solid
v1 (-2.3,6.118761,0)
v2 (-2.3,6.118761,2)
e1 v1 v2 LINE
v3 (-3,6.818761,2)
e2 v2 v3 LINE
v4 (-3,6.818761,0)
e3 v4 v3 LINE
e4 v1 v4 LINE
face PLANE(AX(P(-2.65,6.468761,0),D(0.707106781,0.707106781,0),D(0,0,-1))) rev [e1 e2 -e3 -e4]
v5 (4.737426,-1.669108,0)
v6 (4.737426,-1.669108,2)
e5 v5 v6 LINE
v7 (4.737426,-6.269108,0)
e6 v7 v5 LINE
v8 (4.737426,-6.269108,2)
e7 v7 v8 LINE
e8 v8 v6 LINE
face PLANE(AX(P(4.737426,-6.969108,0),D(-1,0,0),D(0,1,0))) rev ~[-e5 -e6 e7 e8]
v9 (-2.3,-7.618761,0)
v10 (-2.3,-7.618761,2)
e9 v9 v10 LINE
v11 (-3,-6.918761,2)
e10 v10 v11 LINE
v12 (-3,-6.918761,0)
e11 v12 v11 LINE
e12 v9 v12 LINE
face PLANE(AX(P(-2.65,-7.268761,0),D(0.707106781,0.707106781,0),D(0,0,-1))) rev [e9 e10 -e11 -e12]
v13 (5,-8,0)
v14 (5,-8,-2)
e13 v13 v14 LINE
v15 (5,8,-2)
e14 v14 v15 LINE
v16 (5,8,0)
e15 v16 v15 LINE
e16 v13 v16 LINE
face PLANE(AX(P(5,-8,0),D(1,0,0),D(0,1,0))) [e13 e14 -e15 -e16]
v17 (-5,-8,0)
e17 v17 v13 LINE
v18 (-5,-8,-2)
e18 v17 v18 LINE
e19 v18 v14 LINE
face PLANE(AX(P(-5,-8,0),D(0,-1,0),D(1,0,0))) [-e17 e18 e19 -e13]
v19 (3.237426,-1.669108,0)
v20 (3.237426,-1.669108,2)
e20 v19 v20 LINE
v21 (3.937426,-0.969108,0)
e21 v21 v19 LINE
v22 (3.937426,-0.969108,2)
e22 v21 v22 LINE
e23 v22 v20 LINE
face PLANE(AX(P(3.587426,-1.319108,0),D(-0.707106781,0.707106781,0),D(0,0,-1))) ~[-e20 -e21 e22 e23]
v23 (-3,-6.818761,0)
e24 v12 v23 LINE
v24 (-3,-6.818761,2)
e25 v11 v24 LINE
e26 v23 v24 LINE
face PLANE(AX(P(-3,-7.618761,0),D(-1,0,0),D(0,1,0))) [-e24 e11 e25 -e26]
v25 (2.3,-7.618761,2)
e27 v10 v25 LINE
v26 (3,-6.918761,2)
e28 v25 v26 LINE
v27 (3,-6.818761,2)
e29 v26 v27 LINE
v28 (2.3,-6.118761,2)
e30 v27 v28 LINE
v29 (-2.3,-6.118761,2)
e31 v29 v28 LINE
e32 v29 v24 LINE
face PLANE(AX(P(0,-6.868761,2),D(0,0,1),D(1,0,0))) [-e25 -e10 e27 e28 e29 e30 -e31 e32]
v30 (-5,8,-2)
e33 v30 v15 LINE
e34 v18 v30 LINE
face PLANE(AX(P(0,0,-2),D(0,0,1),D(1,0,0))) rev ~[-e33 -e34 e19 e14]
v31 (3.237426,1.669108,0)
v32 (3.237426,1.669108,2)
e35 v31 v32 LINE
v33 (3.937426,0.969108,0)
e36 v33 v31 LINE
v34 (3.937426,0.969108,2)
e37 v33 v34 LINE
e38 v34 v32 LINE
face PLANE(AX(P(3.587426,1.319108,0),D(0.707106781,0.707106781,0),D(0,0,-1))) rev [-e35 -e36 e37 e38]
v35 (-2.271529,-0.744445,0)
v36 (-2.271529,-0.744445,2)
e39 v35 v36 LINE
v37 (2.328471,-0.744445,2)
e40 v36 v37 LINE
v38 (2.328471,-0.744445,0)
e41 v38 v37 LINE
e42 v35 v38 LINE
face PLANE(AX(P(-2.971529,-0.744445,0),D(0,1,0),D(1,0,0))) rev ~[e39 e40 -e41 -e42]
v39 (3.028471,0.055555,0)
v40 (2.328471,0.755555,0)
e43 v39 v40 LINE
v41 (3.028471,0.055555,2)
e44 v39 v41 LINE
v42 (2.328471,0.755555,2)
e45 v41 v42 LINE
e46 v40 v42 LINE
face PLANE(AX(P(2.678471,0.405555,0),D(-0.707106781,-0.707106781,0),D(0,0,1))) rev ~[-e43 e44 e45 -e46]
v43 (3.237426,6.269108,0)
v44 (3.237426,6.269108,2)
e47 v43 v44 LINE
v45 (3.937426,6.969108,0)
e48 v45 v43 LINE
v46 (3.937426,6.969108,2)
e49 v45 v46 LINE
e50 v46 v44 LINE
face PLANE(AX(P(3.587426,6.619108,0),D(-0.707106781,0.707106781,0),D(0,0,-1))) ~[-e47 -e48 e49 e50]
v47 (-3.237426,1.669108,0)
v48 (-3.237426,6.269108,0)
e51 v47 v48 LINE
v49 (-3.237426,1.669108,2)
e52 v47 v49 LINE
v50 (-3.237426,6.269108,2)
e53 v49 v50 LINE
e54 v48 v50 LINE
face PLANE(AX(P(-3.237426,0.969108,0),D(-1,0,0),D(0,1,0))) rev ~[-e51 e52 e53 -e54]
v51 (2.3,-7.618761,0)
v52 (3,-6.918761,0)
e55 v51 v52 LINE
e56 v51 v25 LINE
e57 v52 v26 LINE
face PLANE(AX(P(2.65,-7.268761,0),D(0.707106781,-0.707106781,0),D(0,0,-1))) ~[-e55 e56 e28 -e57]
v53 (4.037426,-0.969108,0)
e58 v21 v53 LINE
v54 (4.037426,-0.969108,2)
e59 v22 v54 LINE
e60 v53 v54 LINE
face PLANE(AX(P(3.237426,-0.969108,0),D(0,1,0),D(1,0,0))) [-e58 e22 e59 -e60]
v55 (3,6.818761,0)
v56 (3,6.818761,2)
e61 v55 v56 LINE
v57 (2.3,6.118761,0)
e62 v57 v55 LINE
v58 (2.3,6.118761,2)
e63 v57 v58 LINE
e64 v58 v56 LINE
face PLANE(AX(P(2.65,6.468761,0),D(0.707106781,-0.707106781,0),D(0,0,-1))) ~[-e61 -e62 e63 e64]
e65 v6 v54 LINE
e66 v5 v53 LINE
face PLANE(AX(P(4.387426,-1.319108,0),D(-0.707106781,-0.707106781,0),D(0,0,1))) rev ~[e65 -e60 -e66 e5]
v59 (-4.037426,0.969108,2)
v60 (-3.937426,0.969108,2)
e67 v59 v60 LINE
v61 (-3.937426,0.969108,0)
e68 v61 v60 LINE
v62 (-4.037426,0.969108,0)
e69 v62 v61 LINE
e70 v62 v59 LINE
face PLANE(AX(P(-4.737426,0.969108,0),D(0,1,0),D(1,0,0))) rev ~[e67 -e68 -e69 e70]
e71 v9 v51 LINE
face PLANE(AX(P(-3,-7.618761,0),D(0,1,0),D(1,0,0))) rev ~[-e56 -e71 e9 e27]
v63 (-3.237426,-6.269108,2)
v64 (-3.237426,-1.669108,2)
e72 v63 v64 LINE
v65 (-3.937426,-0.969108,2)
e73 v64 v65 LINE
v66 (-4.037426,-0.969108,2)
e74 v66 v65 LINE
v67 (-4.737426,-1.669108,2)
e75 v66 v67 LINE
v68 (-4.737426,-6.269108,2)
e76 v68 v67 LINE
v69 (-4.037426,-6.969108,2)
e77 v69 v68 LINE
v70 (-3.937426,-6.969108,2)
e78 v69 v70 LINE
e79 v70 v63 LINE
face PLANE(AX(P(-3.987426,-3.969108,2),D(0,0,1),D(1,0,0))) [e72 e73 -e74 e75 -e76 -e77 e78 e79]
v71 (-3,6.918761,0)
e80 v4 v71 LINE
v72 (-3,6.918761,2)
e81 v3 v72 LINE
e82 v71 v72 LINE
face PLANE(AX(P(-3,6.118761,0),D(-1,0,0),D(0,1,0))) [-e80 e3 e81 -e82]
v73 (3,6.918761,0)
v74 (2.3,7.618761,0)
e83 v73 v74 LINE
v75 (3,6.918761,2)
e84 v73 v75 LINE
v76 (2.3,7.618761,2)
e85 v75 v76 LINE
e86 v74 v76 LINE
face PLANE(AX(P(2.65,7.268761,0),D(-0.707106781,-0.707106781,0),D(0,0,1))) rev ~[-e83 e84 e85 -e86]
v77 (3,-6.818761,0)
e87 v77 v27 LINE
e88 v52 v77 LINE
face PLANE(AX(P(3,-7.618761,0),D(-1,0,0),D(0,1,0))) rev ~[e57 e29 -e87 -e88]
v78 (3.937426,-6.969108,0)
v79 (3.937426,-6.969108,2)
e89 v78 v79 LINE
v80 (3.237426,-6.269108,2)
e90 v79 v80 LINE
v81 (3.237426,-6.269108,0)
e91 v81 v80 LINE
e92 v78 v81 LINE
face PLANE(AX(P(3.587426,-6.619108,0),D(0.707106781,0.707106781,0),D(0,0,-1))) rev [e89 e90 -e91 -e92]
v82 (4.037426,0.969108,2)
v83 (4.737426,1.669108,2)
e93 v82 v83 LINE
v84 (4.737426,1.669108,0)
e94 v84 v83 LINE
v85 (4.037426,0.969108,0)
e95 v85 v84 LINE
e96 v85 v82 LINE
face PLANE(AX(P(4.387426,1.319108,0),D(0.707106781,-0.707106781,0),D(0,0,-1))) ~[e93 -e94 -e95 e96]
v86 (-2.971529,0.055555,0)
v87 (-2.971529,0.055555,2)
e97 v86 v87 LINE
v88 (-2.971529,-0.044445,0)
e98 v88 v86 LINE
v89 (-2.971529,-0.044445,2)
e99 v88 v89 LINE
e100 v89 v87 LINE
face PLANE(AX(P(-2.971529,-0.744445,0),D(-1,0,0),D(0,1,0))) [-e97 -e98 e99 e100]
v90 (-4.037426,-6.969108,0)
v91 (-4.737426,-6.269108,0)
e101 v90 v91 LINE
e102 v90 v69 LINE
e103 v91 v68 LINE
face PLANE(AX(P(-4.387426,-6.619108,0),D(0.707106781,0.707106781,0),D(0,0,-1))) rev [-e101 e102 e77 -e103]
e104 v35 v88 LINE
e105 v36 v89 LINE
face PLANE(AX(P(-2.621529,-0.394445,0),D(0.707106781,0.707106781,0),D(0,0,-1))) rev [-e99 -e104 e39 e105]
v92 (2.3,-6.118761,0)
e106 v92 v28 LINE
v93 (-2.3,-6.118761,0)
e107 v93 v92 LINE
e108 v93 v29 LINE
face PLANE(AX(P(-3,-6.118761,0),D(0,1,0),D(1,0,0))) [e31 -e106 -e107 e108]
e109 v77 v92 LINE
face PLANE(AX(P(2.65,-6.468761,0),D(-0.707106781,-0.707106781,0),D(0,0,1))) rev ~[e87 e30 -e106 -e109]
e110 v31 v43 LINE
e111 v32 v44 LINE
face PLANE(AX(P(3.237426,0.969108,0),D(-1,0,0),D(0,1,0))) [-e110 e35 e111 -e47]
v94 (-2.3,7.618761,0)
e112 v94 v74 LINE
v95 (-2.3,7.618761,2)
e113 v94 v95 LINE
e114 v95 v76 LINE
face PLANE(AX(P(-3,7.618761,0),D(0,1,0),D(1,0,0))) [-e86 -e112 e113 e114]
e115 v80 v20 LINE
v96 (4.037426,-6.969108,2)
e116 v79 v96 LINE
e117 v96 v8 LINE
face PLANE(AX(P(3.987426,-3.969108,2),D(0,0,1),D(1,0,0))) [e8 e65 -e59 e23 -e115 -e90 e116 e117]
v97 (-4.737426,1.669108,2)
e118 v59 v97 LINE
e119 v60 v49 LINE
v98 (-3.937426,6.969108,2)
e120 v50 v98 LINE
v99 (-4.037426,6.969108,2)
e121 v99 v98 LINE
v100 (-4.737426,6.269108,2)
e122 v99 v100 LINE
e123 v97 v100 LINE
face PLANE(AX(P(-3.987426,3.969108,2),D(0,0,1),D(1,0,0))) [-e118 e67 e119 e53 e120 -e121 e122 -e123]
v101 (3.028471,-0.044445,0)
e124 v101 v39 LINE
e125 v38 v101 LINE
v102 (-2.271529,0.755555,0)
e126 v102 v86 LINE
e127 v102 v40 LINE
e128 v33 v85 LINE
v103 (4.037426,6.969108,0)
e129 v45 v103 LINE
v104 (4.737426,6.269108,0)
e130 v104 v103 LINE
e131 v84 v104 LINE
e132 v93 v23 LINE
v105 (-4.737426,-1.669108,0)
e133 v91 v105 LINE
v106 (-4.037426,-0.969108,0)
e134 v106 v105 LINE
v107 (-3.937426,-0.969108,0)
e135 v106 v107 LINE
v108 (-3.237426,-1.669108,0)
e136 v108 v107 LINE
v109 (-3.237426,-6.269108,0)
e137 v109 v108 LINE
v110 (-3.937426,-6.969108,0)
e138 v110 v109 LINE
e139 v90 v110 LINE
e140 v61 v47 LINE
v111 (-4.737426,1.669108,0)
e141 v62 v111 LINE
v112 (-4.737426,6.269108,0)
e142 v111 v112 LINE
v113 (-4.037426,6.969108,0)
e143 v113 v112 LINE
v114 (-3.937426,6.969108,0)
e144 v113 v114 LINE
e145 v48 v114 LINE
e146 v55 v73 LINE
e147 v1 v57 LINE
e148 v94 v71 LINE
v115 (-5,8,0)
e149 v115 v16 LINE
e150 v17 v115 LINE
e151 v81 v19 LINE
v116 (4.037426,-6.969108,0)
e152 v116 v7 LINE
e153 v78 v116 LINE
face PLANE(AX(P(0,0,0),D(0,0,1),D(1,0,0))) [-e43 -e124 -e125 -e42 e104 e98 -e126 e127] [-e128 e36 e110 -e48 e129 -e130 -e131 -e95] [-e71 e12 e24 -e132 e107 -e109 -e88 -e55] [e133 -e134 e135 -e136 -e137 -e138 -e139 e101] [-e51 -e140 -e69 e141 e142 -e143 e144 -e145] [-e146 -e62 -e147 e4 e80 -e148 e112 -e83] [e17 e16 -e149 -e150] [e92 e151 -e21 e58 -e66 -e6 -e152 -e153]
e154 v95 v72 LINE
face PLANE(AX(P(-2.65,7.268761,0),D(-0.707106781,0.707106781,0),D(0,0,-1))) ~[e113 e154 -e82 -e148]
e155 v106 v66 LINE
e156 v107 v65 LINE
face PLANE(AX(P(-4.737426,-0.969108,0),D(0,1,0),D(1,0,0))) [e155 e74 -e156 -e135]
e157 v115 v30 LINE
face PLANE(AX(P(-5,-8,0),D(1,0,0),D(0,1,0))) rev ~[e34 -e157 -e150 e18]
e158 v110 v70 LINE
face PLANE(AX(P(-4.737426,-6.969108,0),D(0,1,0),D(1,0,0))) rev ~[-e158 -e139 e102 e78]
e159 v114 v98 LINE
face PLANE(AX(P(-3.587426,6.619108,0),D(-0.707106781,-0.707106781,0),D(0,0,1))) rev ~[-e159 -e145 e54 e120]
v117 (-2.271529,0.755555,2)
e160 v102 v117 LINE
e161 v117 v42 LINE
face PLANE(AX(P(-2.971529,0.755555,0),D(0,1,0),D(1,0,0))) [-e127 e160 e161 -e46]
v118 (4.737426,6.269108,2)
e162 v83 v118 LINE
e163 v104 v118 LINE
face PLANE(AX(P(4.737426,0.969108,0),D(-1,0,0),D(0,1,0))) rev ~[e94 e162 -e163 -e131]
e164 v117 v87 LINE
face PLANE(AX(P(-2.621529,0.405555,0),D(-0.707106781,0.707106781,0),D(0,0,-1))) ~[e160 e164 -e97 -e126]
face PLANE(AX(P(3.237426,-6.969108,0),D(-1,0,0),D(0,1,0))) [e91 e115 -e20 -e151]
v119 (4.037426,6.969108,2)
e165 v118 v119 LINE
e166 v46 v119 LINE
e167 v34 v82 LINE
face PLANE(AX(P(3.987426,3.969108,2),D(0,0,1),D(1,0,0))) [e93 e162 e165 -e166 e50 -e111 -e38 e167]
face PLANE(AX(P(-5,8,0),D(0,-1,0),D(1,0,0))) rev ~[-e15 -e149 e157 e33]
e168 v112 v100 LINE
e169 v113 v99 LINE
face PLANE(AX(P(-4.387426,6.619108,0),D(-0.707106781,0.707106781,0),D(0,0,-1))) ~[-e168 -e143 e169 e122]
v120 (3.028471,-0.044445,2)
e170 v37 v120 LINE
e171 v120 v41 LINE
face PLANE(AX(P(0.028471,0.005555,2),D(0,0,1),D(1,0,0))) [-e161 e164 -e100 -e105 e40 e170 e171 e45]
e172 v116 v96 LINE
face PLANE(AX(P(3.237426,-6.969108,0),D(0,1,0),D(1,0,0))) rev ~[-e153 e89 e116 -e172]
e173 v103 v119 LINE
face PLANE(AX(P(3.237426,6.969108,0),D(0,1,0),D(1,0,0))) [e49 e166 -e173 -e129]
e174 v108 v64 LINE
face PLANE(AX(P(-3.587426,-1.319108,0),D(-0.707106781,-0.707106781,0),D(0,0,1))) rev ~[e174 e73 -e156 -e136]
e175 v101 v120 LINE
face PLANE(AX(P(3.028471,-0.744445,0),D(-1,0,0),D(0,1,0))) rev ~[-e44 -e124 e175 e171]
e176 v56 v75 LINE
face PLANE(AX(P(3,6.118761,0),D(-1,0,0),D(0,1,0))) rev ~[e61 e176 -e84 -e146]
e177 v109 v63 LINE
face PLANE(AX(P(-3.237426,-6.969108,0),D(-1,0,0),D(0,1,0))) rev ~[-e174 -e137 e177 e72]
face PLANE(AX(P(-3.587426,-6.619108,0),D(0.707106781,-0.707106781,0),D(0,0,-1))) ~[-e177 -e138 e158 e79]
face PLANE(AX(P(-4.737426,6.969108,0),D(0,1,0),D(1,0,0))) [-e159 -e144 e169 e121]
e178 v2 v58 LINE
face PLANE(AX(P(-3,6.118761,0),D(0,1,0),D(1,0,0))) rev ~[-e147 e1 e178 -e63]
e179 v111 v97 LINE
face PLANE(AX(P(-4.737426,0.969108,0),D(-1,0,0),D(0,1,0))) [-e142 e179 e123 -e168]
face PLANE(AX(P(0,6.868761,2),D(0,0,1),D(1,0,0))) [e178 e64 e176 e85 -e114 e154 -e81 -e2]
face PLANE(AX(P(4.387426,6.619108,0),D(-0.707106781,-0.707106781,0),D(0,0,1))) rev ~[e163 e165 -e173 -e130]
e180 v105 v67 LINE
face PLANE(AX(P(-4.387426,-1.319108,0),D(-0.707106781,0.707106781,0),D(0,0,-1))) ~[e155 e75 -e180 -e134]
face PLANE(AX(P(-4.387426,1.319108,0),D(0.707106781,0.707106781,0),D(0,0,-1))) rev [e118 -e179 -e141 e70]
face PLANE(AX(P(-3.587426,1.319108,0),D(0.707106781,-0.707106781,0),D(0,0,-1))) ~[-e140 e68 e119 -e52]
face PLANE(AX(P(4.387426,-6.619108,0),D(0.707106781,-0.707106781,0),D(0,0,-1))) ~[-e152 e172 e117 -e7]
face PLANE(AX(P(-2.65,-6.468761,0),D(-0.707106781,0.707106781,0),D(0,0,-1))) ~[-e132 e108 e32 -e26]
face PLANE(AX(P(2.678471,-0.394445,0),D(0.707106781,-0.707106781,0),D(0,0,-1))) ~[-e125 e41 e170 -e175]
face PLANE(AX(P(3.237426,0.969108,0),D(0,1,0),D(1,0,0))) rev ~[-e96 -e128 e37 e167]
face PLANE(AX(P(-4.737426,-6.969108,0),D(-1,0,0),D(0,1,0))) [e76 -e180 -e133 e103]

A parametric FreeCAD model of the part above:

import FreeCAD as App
import Part
import Sketcher
from FreeCAD import Vector
Q = App.Units.Quantity


def edges_at(feature, points):
    """Names of the edges that pass closest to the given points."""
    edges = feature.Shape.Edges
    near = lambda p: min(range(len(edges)), key=lambda i: edges[i].distToShape(Part.Vertex(*p))[0])
    return sorted({f"Edge{near(p) + 1}" for p in points})

doc = App.newDocument("Part")
body = doc.addObject("PartDesign::Body", "Body")

# Sketch on XY plane
sketch1 = body.newObject("Sketcher::SketchObject", "Sketch")
sketch1.AttachmentSupport = (doc.getObject("XY_Plane"), [""])
sketch1.MapMode = "FlatFace"
sketch1.addGeometry([
    Part.LineSegment(Vector(-5, 8, 0), Vector(-5, -8, 0)),
    Part.LineSegment(Vector(-5, -8, 0), Vector(5, -8, 0)),
    Part.LineSegment(Vector(5, -8, 0), Vector(5, 8, 0)),
    Part.LineSegment(Vector(5, 8, 0), Vector(-5, 8, 0)),
], False)
sketch1.addConstraint([
    Sketcher.Constraint("Coincident", 0, 2, 1, 1),
    Sketcher.Constraint("Coincident", 1, 2, 2, 1),
    Sketcher.Constraint("Coincident", 2, 2, 3, 1),
    Sketcher.Constraint("Coincident", 3, 2, 0, 1),
    Sketcher.Constraint("Vertical", 0),
    Sketcher.Constraint("Horizontal", 1),
    Sketcher.Constraint("Vertical", 2),
    Sketcher.Constraint("Horizontal", 3),
    Sketcher.Constraint("Symmetric", 0, 2, 2, 2, -1, 1),
    Sketcher.Constraint("DistanceX", 1, 1, 1, 2, Q("10 mm")),
    Sketcher.Constraint("DistanceY", 0, 2, 0, 1, Q("16 mm")),
])
pad1 = body.newObject("PartDesign::Pad", "Pad")
pad1.Profile = sketch1
pad1.Length = 2
pad1.Reversed = True

# Sketch on XY plane
sketch2 = body.newObject("Sketcher::SketchObject", "Sketch001")
sketch2.AttachmentSupport = (doc.getObject("XY_Plane"), [""])
sketch2.MapMode = "FlatFace"
sketch2.addGeometry([
    Part.LineSegment(Vector(-4.7, 7, 0), Vector(-4.7, 1, 0)),  # 0
    Part.LineSegment(Vector(-4.7, 1, 0), Vector(-3.2, 1, 0)),  # 1
    Part.LineSegment(Vector(-3.2, 1, 0), Vector(-3.2, 7, 0)),  # 2
    Part.LineSegment(Vector(-3.2, 7, 0), Vector(-4.7, 7, 0)),  # 3
    Part.LineSegment(Vector(-3, 7.6, 0), Vector(-3, 6.1, 0)),  # 4
    Part.LineSegment(Vector(-3, 6.1, 0), Vector(3, 6.1, 0)),  # 5
    Part.LineSegment(Vector(3, 6.1, 0), Vector(3, 7.6, 0)),  # 6
    Part.LineSegment(Vector(3, 7.6, 0), Vector(-3, 7.6, 0)),  # 7
    Part.LineSegment(Vector(3.2, 7, 0), Vector(3.2, 1, 0)),  # 8
    Part.LineSegment(Vector(3.2, 1, 0), Vector(4.7, 1, 0)),  # 9
    Part.LineSegment(Vector(4.7, 1, 0), Vector(4.7, 7, 0)),  # 10
    Part.LineSegment(Vector(4.7, 7, 0), Vector(3.2, 7, 0)),  # 11
    Part.LineSegment(Vector(-3, 0.8, 0), Vector(-3, -0.7, 0)),  # 12
    Part.LineSegment(Vector(-3, -0.7, 0), Vector(3, -0.7, 0)),  # 13
    Part.LineSegment(Vector(3, -0.7, 0), Vector(3, 0.8, 0)),  # 14
    Part.LineSegment(Vector(3, 0.8, 0), Vector(-3, 0.8, 0)),  # 15
    Part.LineSegment(Vector(-4.7, -1, 0), Vector(-4.7, -7, 0)),  # 16
    Part.LineSegment(Vector(-4.7, -7, 0), Vector(-3.2, -7, 0)),  # 17
    Part.LineSegment(Vector(-3.2, -7, 0), Vector(-3.2, -1, 0)),  # 18
    Part.LineSegment(Vector(-3.2, -1, 0), Vector(-4.7, -1, 0)),  # 19
    Part.LineSegment(Vector(-3, -6.1, 0), Vector(-3, -7.6, 0)),  # 20
    Part.LineSegment(Vector(-3, -7.6, 0), Vector(3, -7.6, 0)),  # 21
    Part.LineSegment(Vector(3, -7.6, 0), Vector(3, -6.1, 0)),  # 22
    Part.LineSegment(Vector(3, -6.1, 0), Vector(-3, -6.1, 0)),  # 23
    Part.LineSegment(Vector(3.2, -1, 0), Vector(3.2, -7, 0)),  # 24
    Part.LineSegment(Vector(3.2, -7, 0), Vector(4.7, -7, 0)),  # 25
    Part.LineSegment(Vector(4.7, -7, 0), Vector(4.7, -1, 0)),  # 26
    Part.LineSegment(Vector(4.7, -1, 0), Vector(3.2, -1, 0)),  # 27
], False)
sketch2.addConstraint([
    Sketcher.Constraint("Coincident", 0, 2, 1, 1),
    Sketcher.Constraint("Coincident", 1, 2, 2, 1),
    Sketcher.Constraint("Coincident", 2, 2, 3, 1),
    Sketcher.Constraint("Coincident", 3, 2, 0, 1),
    Sketcher.Constraint("Coincident", 4, 2, 5, 1),
    Sketcher.Constraint("Coincident", 5, 2, 6, 1),
    Sketcher.Constraint("Coincident", 6, 2, 7, 1),
    Sketcher.Constraint("Coincident", 7, 2, 4, 1),
    Sketcher.Constraint("Coincident", 8, 2, 9, 1),
    Sketcher.Constraint("Coincident", 9, 2, 10, 1),
    Sketcher.Constraint("Coincident", 10, 2, 11, 1),
    Sketcher.Constraint("Coincident", 11, 2, 8, 1),
    Sketcher.Constraint("Coincident", 12, 2, 13, 1),
    Sketcher.Constraint("Coincident", 13, 2, 14, 1),
    Sketcher.Constraint("Coincident", 14, 2, 15, 1),
    Sketcher.Constraint("Coincident", 15, 2, 12, 1),
    Sketcher.Constraint("Coincident", 16, 2, 17, 1),
    Sketcher.Constraint("Coincident", 17, 2, 18, 1),
    Sketcher.Constraint("Coincident", 18, 2, 19, 1),
    Sketcher.Constraint("Coincident", 19, 2, 16, 1),
    Sketcher.Constraint("Coincident", 20, 2, 21, 1),
    Sketcher.Constraint("Coincident", 21, 2, 22, 1),
    Sketcher.Constraint("Coincident", 22, 2, 23, 1),
    Sketcher.Constraint("Coincident", 23, 2, 20, 1),
    Sketcher.Constraint("Coincident", 24, 2, 25, 1),
    Sketcher.Constraint("Coincident", 25, 2, 26, 1),
    Sketcher.Constraint("Coincident", 26, 2, 27, 1),
    Sketcher.Constraint("Coincident", 27, 2, 24, 1),
    Sketcher.Constraint("Vertical", 0),
    Sketcher.Constraint("Horizontal", 1),
    Sketcher.Constraint("Vertical", 2),
    Sketcher.Constraint("Horizontal", 3),
    Sketcher.Constraint("Vertical", 4),
    Sketcher.Constraint("Horizontal", 5),
    Sketcher.Constraint("Vertical", 6),
    Sketcher.Constraint("Horizontal", 7),
    Sketcher.Constraint("Vertical", 8),
    Sketcher.Constraint("Horizontal", 9),
    Sketcher.Constraint("Vertical", 10),
    Sketcher.Constraint("Horizontal", 11),
    Sketcher.Constraint("Vertical", 12),
    Sketcher.Constraint("Horizontal", 13),
    Sketcher.Constraint("Vertical", 14),
    Sketcher.Constraint("Horizontal", 15),
    Sketcher.Constraint("Vertical", 16),
    Sketcher.Constraint("Horizontal", 17),
    Sketcher.Constraint("Vertical", 18),
    Sketcher.Constraint("Horizontal", 19),
    Sketcher.Constraint("Vertical", 20),
    Sketcher.Constraint("Horizontal", 21),
    Sketcher.Constraint("Vertical", 22),
    Sketcher.Constraint("Horizontal", 23),
    Sketcher.Constraint("Vertical", 24),
    Sketcher.Constraint("Horizontal", 25),
    Sketcher.Constraint("Vertical", 26),
    Sketcher.Constraint("Horizontal", 27),
    Sketcher.Constraint("Symmetric", 10, 2, 16, 2, -1, 1),
    Sketcher.Constraint("Symmetric", 8, 2, 18, 2, -1, 1),
    Sketcher.Constraint("Symmetric", 6, 2, 20, 2, -1, 1),
    Sketcher.Constraint("Symmetric", 4, 2, 22, 2, -1, 1),
    Sketcher.Constraint("Symmetric", 2, 2, 24, 2, -1, 1),
    Sketcher.Constraint("Symmetric", 0, 2, 26, 2, -1, 1),
    Sketcher.Constraint("Symmetric", 1, 2, 8, 2, -2),
    Sketcher.Constraint("Symmetric", 3, 2, 10, 2, -2),
    Sketcher.Constraint("Vertical", 7, 2, 20, 2),
    Sketcher.Constraint("Equal", 7, 13),
    Sketcher.Constraint("Equal", 23, 0),
    Sketcher.Constraint("Equal", 27, 4),
    Sketcher.Constraint("Equal", 6, 12),
    Sketcher.Constraint("DistanceX", 5, 1, 5, 2, Q("6 mm")),
    Sketcher.Constraint("DistanceX", 1, 1, 1, 2, Q("1.5 mm")),
    Sketcher.Constraint("DistanceY", -1, 1, 2, 2, Q("6.969108 mm")),
    Sketcher.Constraint("DistanceY", -1, 1, 4, 2, Q("6.118761 mm")),
    Sketcher.Constraint("DistanceX", 12, 2, -1, 1, Q("2.971529 mm")),
    Sketcher.Constraint("DistanceX", 0, 2, -1, 1, Q("4.737426 mm")),
    Sketcher.Constraint("DistanceY", 12, 2, -1, 1, Q("0.744445 mm")),
])
pad2 = body.newObject("PartDesign::Pad", "Pad001")
pad2.Profile = sketch2
pad2.Length = 2
doc.recompute()

chamfer = body.newObject("PartDesign::Chamfer", "Chamfer")
chamfer.Base = (pad2, edges_at(pad2, [
    (3, 6.119, 1),
    (3.237, 6.969, 1),
    (3.237, 0.969, 1),
    (4.737, 0.969, 1),
    (3.237, -0.969, 1),
    (3.028, -0.744, 1),
    (-2.972, -0.744, 1),
    (-2.972, 0.756, 1),
    (-3.237, 0.969, 1),
    (-4.737, 0.969, 1),
    (-4.737, 6.969, 1),
    (-3, 6.119, 1),
    (-3, 7.619, 1),
    (3.237, -6.969, 1),
    (4.737, -6.969, 1),
    (3, -7.619, 1),
    (-3, -7.619, 1),
    (-3.237, -6.969, 1),
    (-4.737, -6.969, 1),
    (-3, -6.119, 1),
    (-4.737, -0.969, 1),
    (-3.237, -0.969, 1),
    (3.028, 0.756, 1),
    (4.737, -0.969, 1),
    (3, -6.119, 1),
    (4.737, 6.969, 1),
    (3, 7.619, 1),
    (-3.237, 6.969, 1),
]))
chamfer.Size = 0.7

doc.recompute()
